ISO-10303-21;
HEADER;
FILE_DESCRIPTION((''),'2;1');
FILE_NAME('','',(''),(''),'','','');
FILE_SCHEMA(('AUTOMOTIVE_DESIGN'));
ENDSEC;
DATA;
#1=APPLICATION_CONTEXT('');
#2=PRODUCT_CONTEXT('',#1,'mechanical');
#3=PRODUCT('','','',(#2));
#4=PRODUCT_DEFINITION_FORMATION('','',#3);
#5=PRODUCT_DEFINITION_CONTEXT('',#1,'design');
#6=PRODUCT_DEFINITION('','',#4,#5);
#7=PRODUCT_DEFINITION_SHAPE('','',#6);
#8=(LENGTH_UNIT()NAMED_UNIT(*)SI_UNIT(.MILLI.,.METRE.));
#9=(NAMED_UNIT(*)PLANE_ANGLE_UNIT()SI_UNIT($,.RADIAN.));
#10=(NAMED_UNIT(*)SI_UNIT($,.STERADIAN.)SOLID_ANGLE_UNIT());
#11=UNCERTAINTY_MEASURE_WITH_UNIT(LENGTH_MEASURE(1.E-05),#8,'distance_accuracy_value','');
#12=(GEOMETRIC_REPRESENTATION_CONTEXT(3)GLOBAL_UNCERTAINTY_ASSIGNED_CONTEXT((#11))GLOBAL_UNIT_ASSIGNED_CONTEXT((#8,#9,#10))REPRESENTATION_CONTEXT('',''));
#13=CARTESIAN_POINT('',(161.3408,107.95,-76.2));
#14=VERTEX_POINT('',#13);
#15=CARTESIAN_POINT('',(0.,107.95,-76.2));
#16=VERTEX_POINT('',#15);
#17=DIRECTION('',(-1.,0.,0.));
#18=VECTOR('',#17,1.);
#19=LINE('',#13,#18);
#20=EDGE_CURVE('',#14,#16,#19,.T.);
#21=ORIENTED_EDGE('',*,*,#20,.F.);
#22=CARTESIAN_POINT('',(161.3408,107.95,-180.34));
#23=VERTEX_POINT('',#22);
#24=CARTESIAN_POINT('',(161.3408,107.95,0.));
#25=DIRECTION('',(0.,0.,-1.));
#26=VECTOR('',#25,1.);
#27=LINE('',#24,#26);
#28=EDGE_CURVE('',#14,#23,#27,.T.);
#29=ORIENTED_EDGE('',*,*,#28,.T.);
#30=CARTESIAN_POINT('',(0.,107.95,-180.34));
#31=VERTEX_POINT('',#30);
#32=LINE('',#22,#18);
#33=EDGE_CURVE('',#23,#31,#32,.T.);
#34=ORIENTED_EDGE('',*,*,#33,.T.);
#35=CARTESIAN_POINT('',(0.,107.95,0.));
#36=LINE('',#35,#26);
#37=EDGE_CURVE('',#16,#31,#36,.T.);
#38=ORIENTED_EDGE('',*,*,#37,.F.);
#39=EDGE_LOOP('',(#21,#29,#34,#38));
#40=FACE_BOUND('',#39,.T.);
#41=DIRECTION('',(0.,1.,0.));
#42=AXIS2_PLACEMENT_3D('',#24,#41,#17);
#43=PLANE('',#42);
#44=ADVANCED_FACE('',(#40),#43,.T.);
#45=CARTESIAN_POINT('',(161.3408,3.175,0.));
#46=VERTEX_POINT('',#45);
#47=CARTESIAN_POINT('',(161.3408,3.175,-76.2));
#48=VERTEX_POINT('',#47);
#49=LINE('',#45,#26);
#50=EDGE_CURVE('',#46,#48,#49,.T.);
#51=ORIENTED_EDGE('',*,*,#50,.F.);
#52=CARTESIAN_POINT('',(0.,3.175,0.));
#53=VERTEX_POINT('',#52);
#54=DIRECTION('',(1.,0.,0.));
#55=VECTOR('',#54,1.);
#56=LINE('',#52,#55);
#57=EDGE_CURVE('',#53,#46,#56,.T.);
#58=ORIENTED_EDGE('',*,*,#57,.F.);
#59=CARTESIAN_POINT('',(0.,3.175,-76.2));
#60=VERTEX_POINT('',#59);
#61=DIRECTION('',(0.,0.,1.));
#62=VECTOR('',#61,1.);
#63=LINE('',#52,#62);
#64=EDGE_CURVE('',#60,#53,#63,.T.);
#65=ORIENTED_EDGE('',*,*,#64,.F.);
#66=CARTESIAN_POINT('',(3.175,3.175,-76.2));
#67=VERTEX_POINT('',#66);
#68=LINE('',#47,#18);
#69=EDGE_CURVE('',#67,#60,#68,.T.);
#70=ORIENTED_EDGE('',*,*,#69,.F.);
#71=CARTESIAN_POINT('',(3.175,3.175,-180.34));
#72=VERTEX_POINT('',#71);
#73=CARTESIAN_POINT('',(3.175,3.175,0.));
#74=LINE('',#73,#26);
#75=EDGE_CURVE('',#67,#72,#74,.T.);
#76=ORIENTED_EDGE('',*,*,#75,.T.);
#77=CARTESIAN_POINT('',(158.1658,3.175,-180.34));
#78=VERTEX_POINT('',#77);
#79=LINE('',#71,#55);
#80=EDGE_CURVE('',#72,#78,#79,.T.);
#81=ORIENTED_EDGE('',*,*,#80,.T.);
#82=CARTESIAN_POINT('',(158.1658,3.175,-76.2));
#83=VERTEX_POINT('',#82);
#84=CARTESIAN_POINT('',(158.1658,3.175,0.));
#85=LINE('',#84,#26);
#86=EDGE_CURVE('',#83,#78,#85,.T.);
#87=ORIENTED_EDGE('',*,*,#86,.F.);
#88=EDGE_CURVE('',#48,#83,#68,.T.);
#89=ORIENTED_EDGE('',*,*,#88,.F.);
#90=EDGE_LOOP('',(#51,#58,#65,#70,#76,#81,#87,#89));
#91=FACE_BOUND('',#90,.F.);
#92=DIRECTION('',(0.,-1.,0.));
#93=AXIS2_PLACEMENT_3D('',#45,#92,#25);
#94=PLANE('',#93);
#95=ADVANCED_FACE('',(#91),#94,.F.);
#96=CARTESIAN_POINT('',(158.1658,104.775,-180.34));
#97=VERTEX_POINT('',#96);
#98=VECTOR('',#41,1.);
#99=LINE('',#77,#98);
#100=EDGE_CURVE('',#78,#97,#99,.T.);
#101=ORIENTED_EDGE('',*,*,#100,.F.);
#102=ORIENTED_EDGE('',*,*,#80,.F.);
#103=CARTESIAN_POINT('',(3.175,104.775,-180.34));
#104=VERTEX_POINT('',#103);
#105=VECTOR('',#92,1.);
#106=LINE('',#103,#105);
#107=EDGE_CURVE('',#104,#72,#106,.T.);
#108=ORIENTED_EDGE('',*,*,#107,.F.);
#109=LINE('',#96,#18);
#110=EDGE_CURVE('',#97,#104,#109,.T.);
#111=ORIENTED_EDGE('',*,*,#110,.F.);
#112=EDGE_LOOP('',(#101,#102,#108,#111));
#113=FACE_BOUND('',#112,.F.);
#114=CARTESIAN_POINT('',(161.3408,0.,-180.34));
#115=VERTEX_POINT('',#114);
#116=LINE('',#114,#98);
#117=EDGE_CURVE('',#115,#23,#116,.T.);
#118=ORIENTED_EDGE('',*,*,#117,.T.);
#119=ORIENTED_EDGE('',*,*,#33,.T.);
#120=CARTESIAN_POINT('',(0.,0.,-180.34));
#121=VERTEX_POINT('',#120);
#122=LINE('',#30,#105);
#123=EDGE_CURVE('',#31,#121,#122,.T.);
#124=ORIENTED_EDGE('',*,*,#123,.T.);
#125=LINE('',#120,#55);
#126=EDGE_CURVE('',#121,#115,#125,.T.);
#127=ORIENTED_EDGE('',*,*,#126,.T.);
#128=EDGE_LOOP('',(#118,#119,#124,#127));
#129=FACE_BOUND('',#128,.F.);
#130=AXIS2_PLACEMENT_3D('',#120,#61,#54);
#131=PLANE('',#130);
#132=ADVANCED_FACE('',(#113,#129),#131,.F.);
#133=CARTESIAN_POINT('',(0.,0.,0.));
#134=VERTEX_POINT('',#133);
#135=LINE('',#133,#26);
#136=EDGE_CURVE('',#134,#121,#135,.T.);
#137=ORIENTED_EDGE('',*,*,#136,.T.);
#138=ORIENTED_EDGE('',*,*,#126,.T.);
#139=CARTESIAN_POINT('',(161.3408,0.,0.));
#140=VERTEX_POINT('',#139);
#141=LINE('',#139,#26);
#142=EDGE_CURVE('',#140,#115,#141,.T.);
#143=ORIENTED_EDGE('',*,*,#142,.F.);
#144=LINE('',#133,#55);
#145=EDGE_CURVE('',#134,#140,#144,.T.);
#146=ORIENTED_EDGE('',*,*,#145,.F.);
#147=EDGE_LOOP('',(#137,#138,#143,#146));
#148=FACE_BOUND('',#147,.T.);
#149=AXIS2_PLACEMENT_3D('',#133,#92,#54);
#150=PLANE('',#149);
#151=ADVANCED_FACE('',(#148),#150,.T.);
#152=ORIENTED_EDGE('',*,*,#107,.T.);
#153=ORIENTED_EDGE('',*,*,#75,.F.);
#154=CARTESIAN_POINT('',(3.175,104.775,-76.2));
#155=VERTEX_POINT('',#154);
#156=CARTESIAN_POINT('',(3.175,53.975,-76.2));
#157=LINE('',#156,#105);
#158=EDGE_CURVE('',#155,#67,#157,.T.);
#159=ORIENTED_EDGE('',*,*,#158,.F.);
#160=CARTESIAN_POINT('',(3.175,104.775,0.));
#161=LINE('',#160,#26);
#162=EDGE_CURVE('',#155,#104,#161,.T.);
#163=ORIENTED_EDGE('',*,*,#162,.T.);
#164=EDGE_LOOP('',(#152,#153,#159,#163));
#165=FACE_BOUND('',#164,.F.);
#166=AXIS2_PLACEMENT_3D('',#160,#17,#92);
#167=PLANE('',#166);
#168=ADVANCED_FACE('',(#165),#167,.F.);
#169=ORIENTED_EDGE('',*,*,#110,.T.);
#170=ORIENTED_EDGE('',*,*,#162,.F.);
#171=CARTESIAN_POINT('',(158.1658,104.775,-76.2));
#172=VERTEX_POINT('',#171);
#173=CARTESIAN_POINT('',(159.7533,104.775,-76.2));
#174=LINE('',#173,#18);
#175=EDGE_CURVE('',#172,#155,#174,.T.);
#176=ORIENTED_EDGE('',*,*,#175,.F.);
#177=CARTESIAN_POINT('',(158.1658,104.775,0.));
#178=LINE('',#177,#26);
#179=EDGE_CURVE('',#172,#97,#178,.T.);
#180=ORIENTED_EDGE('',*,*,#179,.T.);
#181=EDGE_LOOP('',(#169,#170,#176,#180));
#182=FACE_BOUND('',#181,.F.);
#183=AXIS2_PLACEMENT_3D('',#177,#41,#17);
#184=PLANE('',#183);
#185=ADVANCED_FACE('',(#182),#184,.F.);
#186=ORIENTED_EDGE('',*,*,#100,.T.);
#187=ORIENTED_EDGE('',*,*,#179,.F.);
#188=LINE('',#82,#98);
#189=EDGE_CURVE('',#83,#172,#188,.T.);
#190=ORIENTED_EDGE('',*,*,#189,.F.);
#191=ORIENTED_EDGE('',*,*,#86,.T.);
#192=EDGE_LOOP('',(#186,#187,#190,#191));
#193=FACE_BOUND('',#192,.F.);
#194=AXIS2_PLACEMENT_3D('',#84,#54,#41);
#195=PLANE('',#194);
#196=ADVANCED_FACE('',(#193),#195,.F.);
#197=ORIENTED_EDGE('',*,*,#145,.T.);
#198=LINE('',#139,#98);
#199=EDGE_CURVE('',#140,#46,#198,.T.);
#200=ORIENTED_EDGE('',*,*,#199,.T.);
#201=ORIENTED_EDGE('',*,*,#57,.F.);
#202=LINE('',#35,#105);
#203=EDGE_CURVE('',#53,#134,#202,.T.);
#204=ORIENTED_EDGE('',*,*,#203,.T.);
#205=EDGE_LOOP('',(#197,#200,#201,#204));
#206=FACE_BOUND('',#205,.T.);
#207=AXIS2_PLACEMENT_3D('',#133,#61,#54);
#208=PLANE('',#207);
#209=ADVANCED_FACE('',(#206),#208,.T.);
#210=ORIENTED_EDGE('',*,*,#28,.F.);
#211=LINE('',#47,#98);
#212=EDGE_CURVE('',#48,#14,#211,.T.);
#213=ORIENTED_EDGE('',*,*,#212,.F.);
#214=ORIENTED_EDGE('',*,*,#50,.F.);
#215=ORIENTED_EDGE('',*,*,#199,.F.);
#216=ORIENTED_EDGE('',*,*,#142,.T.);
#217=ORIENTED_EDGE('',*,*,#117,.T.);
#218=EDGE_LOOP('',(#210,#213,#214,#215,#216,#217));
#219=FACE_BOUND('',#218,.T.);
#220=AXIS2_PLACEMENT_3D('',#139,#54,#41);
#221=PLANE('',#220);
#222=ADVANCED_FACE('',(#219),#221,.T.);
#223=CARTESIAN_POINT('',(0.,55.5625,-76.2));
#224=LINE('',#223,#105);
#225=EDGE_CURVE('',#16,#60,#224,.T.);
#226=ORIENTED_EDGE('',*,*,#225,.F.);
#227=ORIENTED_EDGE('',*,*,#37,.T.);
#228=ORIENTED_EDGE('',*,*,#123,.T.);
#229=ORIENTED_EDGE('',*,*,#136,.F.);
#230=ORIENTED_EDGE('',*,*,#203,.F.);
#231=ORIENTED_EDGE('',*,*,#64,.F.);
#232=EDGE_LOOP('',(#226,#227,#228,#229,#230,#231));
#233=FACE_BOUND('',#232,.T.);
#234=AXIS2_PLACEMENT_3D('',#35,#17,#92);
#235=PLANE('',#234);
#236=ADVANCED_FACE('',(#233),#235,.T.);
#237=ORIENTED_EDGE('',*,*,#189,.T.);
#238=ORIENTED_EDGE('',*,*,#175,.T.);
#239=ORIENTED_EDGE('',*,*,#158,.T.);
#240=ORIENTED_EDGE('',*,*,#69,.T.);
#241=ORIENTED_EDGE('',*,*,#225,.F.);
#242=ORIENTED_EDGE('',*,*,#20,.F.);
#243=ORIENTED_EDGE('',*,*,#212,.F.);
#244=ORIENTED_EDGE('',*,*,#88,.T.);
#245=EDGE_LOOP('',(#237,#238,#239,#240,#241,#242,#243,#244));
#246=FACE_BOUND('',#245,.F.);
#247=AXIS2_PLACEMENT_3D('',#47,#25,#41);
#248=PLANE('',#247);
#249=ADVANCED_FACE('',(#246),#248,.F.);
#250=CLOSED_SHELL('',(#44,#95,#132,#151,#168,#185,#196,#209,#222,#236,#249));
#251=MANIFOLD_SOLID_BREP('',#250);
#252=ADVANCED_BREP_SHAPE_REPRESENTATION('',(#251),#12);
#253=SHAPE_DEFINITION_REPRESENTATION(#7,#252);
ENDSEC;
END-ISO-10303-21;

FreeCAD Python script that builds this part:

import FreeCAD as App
import Part
import Sketcher

V = App.Vector
Q = App.Units.Quantity


def add_polygon(sketch, points):
    """Adds a closed chain of lines whose ends are joined by coincident constraints."""
    first, n = sketch.GeometryCount, len(points)
    for a, b in zip(points, points[1:] + points[:1]):
        sketch.addGeometry(Part.LineSegment(App.Vector(*a, 0), App.Vector(*b, 0)), False)
    for i in range(n):
        sketch.addConstraint(Sketcher.Constraint("Coincident", first + i, 2, first + (i + 1) % n, 1))

doc = App.newDocument("Part")
body = doc.addObject("PartDesign::Body", "Body")

# Sketch on XY plane
sketch1 = doc.addObject("Sketcher::SketchObject", "Sketch")
body.addObject(sketch1)
sketch1.AttachmentSupport = (doc.XY_Plane, [""])
sketch1.MapMode = "FlatFace"
add_polygon(sketch1, [(0, 108), (0, 0), (161, 0), (161, 108)])  # lines 0-3
add_polygon(sketch1, [(158, 3), (3, 3), (3, 105), (158, 105)])  # lines 4-7
sketch1.addConstraint(Sketcher.Constraint("Vertical", 0))
sketch1.addConstraint(Sketcher.Constraint("Horizontal", 1))
sketch1.addConstraint(Sketcher.Constraint("Vertical", 2))
sketch1.addConstraint(Sketcher.Constraint("Horizontal", 3))
sketch1.addConstraint(Sketcher.Constraint("Horizontal", 4))
sketch1.addConstraint(Sketcher.Constraint("Vertical", 5))
sketch1.addConstraint(Sketcher.Constraint("Horizontal", 6))
sketch1.addConstraint(Sketcher.Constraint("Vertical", 7))
sketch1.addConstraint(Sketcher.Constraint("Coincident", 0, 2, -1, 1))
sketch1.addConstraint(Sketcher.Constraint("DistanceY", 5, 1, 5, 2, Q("4 in")))
sketch1.addConstraint(Sketcher.Constraint("DistanceY", 0, 2, 0, 1, Q("4.25 in")))
sketch1.addConstraint(Sketcher.Constraint("DistanceX", 1, 1, 1, 2, Q("6.352 in")))
sketch1.addConstraint(Sketcher.Constraint("DistanceX", 4, 2, 4, 1, Q("6.102 in")))
sketch1.addConstraint(Sketcher.Constraint("DistanceX", -1, 1, 4, 2, Q("0.125 in")))
sketch1.addConstraint(Sketcher.Constraint("DistanceY", -1, 1, 4, 2, Q("0.125 in")))
pad1 = doc.addObject("PartDesign::Pad", "Pad")
body.addObject(pad1)
pad1.Profile = sketch1
pad1.Length = Q("7.1 in")
pad1.Reversed = True

# Sketch on YZ plane
sketch2 = doc.addObject("Sketcher::SketchObject", "Sketch001")
body.addObject(sketch2)
sketch2.AttachmentSupport = (doc.YZ_Plane, [""])
sketch2.MapMode = "FlatFace"
sketch2.AttachmentOffset = App.Placement(V(0, 0, 6.352 * 25.4), App.Rotation())
add_polygon(sketch2, [(108, 0), (3, 0), (3, -76), (108, -76)])  # lines 0-3
sketch2.addConstraint(Sketcher.Constraint("Horizontal", 0))
sketch2.addConstraint(Sketcher.Constraint("Vertical", 1))
sketch2.addConstraint(Sketcher.Constraint("Horizontal", 2))
sketch2.addConstraint(Sketcher.Constraint("Vertical", 3))
sketch2.addConstraint(Sketcher.Constraint("PointOnObject", 0, 2, -1))
sketch2.addConstraint(Sketcher.Constraint("DistanceY", 1, 2, 1, 1, Q("3 in")))
sketch2.addConstraint(Sketcher.Constraint("DistanceX", 0, 2, 0, 1, Q("4.125 in")))
sketch2.addConstraint(Sketcher.Constraint("DistanceX", -1, 1, 2, 2, Q("4.25 in")))
pocket1 = doc.addObject("PartDesign::Pocket", "Pocket")
body.addObject(pocket1)
pocket1.Profile = sketch2
pocket1.Type = "ThroughAll"

doc.recompute()
